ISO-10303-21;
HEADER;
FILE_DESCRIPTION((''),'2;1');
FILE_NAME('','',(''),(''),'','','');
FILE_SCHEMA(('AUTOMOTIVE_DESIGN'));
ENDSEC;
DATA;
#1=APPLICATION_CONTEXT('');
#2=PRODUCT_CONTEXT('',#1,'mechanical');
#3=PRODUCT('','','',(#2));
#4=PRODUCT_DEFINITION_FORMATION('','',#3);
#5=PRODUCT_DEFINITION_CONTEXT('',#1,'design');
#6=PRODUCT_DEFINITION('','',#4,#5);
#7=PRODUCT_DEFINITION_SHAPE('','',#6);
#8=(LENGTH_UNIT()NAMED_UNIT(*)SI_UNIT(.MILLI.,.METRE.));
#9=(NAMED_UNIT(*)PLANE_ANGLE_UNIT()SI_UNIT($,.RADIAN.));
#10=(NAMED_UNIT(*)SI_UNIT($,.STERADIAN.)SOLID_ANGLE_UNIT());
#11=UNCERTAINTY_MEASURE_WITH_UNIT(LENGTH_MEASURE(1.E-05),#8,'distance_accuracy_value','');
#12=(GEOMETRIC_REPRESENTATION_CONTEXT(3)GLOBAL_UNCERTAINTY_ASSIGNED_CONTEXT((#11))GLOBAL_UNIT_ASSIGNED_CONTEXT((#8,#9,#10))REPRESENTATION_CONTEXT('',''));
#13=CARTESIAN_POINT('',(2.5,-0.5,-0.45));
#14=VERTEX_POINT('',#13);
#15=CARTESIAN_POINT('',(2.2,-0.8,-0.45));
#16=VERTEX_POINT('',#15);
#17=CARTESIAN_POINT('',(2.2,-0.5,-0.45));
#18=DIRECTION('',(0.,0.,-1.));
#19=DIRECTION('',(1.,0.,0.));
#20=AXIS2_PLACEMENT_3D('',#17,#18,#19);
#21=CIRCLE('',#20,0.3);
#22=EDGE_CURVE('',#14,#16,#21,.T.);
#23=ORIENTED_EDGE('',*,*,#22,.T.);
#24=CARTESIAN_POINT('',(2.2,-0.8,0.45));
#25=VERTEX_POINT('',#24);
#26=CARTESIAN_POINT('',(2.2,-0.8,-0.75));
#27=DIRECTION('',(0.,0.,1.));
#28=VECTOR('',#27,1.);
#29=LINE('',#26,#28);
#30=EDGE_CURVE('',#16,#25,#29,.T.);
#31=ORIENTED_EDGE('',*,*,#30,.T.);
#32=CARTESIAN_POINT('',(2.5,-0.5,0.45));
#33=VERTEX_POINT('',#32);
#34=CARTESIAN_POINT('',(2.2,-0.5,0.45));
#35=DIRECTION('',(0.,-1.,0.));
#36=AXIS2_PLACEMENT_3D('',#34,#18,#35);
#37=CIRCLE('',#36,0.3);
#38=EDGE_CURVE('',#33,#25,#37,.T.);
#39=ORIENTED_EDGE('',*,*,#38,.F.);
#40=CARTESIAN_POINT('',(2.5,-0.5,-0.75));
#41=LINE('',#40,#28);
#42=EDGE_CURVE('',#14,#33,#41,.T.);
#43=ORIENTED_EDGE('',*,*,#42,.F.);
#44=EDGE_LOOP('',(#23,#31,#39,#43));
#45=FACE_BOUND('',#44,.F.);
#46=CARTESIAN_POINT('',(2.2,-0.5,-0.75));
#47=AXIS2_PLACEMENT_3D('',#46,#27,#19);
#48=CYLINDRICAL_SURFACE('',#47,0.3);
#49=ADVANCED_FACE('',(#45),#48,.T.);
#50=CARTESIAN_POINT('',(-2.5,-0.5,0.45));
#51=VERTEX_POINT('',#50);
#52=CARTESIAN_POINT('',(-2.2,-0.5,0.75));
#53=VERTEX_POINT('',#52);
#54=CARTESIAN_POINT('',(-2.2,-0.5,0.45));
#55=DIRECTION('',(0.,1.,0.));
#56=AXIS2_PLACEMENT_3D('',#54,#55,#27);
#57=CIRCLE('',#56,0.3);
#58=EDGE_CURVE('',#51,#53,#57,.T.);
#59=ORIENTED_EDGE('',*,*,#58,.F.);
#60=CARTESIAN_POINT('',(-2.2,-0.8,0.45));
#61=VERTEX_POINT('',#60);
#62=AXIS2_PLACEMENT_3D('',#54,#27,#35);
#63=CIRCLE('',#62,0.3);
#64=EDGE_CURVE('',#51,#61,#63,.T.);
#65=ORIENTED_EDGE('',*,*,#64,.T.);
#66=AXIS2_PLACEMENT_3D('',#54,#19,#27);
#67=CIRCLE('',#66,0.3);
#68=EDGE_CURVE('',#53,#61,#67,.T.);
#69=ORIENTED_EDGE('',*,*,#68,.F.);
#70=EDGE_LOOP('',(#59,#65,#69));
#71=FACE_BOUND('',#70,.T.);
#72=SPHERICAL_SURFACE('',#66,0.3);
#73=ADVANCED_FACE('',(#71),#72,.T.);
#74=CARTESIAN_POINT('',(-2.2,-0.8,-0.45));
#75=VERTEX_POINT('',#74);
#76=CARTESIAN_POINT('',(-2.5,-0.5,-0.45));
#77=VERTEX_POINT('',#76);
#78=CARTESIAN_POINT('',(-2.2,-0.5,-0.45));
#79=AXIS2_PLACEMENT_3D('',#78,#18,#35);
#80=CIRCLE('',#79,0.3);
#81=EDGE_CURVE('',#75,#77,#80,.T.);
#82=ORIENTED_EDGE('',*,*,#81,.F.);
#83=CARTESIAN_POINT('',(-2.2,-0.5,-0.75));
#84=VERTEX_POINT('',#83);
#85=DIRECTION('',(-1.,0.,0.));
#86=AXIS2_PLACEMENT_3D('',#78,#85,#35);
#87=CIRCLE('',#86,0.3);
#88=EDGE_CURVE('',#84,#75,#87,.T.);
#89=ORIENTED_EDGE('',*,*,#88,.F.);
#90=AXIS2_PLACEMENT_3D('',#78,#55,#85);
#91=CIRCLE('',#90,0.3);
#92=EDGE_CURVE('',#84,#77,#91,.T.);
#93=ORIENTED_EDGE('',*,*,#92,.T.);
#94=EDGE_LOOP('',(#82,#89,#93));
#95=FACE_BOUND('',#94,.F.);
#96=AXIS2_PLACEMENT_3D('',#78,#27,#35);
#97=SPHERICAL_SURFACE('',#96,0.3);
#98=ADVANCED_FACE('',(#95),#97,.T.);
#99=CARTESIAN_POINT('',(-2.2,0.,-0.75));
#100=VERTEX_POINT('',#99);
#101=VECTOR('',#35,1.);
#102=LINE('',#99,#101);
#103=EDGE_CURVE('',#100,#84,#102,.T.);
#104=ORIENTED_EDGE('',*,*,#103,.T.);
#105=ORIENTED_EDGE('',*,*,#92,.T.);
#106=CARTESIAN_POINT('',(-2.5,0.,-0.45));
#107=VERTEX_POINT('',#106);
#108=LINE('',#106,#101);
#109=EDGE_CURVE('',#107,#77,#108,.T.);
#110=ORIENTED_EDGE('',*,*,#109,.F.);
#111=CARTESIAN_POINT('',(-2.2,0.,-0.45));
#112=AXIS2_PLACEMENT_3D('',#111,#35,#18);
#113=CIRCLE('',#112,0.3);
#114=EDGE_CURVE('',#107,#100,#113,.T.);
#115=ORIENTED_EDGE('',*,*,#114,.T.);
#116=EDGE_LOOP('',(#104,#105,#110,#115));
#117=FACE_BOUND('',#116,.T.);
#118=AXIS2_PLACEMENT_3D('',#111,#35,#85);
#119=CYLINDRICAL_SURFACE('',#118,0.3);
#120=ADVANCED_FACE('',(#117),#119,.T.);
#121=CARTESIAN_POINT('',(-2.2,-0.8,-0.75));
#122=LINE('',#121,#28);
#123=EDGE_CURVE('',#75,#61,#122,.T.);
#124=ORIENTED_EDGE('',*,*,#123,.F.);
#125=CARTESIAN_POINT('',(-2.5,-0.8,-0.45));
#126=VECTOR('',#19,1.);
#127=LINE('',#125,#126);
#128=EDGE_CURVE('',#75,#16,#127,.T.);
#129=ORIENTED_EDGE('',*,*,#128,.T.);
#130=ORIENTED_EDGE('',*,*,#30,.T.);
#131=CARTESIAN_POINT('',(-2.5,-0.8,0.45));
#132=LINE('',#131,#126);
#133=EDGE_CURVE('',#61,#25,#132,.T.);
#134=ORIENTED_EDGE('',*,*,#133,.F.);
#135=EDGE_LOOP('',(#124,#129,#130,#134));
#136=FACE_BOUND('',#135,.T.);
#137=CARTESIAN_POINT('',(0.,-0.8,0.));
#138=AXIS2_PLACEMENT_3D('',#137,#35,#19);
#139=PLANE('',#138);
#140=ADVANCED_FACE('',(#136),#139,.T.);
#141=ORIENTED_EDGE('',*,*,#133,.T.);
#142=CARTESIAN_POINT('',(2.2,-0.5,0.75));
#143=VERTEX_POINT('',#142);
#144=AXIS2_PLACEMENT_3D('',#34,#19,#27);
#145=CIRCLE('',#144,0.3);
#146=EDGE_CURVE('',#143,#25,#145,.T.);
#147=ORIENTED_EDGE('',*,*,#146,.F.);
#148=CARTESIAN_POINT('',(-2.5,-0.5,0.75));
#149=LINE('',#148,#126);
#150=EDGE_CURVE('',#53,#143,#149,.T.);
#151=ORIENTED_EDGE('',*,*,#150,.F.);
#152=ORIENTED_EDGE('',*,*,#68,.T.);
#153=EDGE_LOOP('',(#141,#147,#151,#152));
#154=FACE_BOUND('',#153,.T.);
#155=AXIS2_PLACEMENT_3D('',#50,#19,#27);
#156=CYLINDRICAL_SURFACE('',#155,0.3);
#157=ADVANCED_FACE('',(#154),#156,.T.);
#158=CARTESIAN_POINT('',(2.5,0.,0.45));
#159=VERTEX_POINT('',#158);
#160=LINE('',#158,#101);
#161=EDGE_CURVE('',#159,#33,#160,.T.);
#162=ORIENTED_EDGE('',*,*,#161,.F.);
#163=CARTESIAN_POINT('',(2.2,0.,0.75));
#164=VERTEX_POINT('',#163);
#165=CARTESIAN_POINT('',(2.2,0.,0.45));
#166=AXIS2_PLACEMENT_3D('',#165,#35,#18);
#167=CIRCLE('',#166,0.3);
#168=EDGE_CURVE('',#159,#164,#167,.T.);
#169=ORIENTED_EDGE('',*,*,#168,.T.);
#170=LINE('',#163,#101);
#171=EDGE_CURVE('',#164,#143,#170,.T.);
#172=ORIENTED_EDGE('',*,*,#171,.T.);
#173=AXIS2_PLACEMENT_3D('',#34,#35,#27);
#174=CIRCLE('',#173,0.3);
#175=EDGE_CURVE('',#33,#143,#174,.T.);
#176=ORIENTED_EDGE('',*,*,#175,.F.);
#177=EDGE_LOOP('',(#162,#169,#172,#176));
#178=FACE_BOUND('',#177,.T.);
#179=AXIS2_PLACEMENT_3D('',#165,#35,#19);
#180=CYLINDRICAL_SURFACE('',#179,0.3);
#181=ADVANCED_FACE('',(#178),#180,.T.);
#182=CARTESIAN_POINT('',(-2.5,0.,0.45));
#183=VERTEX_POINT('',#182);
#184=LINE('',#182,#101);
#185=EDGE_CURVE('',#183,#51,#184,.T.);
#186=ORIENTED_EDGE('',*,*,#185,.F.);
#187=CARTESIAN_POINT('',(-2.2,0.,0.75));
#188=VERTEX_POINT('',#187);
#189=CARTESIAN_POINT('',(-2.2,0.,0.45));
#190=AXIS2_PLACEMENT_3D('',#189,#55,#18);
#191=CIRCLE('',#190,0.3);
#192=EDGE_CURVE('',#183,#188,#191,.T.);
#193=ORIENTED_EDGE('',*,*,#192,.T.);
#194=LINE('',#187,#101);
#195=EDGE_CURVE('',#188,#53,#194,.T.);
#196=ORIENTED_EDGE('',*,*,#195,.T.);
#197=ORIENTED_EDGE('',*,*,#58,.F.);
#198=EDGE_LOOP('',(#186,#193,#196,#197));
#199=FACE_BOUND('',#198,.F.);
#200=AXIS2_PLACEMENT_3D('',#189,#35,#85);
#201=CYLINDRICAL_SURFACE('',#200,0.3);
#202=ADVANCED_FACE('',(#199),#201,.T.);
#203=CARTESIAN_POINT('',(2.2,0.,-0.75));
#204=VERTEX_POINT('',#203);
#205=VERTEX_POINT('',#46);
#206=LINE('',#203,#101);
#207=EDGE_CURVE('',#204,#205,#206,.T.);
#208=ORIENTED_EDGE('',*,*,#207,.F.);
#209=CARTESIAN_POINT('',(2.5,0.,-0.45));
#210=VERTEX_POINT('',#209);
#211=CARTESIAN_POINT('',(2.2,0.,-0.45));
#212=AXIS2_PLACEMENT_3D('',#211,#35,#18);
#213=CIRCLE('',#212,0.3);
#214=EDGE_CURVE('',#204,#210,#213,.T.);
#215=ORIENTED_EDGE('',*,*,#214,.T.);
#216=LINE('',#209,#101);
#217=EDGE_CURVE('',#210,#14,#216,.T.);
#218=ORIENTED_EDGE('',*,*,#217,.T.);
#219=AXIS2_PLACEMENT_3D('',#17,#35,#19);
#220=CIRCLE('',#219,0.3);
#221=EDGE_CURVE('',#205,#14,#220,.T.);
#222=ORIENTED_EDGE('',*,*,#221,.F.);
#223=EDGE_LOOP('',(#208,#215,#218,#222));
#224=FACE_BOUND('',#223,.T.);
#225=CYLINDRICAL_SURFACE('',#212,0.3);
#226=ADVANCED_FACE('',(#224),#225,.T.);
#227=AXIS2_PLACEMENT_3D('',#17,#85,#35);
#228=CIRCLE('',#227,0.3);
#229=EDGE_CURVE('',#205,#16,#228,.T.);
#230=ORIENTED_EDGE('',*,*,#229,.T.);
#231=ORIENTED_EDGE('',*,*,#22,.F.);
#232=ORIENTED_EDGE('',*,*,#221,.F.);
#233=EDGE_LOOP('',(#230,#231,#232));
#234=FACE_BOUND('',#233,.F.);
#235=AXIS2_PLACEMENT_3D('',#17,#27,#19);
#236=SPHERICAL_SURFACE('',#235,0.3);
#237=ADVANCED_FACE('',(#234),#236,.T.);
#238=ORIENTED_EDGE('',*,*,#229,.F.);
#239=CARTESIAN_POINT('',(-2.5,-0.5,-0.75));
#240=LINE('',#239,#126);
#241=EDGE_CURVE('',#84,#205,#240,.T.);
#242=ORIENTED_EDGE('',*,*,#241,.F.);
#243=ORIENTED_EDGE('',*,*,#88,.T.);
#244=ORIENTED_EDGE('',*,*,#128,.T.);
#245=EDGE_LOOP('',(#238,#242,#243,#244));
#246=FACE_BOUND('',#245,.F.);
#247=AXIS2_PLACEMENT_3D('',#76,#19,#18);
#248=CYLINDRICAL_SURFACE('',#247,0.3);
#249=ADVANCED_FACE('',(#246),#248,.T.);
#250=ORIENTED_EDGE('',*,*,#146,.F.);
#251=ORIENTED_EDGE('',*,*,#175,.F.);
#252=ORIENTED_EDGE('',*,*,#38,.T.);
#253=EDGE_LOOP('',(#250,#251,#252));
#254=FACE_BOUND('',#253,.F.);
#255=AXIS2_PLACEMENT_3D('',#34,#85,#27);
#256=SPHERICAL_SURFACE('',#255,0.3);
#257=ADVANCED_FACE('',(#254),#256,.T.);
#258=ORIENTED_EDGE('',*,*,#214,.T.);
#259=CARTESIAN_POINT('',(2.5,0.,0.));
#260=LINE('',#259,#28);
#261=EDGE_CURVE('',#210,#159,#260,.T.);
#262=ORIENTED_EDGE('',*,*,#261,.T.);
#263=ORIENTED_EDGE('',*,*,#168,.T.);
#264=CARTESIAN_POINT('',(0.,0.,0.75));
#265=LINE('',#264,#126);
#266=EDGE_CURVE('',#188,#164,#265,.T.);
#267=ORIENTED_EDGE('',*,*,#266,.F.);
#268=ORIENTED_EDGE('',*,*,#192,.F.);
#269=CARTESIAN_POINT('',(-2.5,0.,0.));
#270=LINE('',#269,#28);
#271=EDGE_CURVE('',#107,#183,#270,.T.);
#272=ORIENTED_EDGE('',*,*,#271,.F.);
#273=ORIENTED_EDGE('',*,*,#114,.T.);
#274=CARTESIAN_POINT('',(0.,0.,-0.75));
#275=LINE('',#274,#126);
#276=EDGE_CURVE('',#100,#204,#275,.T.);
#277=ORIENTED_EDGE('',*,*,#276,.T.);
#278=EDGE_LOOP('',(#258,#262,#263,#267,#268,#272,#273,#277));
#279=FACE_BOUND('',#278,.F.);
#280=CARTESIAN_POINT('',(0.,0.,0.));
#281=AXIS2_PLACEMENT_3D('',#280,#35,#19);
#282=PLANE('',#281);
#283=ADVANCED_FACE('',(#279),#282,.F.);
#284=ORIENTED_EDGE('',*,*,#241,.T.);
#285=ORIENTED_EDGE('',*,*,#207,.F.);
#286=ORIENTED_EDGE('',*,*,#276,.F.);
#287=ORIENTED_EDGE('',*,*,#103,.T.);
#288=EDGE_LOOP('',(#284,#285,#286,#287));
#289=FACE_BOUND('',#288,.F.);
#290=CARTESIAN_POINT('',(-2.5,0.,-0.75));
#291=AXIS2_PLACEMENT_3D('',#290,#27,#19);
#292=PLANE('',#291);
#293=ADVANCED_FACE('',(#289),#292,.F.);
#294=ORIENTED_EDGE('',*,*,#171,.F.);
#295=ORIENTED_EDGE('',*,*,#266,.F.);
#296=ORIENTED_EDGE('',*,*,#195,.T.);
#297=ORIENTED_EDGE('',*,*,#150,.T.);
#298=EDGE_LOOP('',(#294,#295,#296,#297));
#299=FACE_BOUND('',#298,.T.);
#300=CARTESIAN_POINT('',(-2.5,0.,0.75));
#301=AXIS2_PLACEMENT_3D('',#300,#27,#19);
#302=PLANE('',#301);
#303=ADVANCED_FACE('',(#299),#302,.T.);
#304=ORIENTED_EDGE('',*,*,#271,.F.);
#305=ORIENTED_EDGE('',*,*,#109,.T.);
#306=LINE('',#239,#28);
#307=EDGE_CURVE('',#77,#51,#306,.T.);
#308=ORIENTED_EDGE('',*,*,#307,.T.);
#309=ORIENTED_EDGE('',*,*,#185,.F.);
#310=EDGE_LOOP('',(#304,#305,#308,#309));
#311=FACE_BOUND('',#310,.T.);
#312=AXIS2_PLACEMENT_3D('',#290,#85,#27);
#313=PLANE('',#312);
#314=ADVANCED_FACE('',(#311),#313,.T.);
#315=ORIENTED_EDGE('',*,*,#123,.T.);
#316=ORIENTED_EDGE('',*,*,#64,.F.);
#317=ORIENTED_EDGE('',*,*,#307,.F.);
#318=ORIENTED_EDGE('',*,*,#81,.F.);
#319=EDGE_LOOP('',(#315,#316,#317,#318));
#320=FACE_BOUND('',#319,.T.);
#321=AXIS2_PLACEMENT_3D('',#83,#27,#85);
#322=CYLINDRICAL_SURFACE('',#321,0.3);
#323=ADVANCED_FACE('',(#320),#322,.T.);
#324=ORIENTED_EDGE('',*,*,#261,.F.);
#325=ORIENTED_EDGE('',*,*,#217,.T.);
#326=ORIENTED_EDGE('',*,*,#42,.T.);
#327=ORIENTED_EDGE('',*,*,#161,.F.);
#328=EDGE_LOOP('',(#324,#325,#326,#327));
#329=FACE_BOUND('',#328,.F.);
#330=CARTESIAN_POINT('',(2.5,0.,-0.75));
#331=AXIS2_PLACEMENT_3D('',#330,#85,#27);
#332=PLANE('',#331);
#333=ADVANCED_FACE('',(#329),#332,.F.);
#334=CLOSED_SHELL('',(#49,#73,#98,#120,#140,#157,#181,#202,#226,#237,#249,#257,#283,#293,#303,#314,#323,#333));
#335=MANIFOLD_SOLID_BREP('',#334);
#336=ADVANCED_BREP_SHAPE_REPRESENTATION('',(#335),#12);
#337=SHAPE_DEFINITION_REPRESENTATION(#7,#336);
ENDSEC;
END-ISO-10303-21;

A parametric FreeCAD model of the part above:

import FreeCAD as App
import Part
import Sketcher
from FreeCAD import Vector


def edges_at(feature, points):
    """Names of the edges that pass closest to the given points."""
    edges = feature.Shape.Edges
    near = lambda p: min(range(len(edges)), key=lambda i: edges[i].distToShape(Part.Vertex(*p))[0])
    return sorted({f"Edge{near(p) + 1}" for p in points})


def add_polygon(sketch, points):
    """Adds a closed chain of lines whose ends are joined by coincident constraints."""
    first, n = sketch.GeometryCount, len(points)
    for a, b in zip(points, points[1:] + points[:1]):
        sketch.addGeometry(Part.LineSegment(App.Vector(*a, 0), App.Vector(*b, 0)), False)
    for i in range(n):
        sketch.addConstraint(Sketcher.Constraint("Coincident", first + i, 2, first + (i + 1) % n, 1))

doc = App.newDocument("Part")
body = doc.addObject("PartDesign::Body", "Body")

# Sketch on XZ plane
sketch1 = body.newObject("Sketcher::SketchObject", "Sketch")
sketch1.AttachmentSupport = (doc.getObject("XZ_Plane"), [""])
sketch1.MapMode = "FlatFace"
add_polygon(sketch1, [(-2.5, 0.75), (-2.5, -0.75), (2.5, -0.75), (2.5, 0.75)])  # lines 0-3
sketch1.addConstraint(Sketcher.Constraint("Vertical", 0))
sketch1.addConstraint(Sketcher.Constraint("Horizontal", 1))
sketch1.addConstraint(Sketcher.Constraint("Vertical", 2))
sketch1.addConstraint(Sketcher.Constraint("Horizontal", 3))
sketch1.addConstraint(Sketcher.Constraint("Symmetric", 0, 2, 2, 2, -1, 1))
sketch1.addConstraint(Sketcher.Constraint("DistanceX", 1, 1, 1, 2, 5.0))
sketch1.addConstraint(Sketcher.Constraint("DistanceY", 0, 2, 0, 1, 1.5))
pad1 = body.newObject("PartDesign::Pad", "Pad")
pad1.Profile = sketch1
pad1.Length = 0.8
doc.recompute()

fillet = body.newObject("PartDesign::Fillet", "Fillet")
fillet.Base = (pad1, edges_at(pad1, [
    (0, -0.8, 0.75),
    (-2.5, -0.4, 0.75),
    (2.5, -0.4, 0.75),
    (-2.5, -0.8, 0),
    (2.5, -0.8, 0),
    (2.5, -0.4, -0.75),
    (0, -0.8, -0.75),
    (-2.5, -0.4, -0.75),
]))
fillet.Radius = 0.3

doc.recompute()
